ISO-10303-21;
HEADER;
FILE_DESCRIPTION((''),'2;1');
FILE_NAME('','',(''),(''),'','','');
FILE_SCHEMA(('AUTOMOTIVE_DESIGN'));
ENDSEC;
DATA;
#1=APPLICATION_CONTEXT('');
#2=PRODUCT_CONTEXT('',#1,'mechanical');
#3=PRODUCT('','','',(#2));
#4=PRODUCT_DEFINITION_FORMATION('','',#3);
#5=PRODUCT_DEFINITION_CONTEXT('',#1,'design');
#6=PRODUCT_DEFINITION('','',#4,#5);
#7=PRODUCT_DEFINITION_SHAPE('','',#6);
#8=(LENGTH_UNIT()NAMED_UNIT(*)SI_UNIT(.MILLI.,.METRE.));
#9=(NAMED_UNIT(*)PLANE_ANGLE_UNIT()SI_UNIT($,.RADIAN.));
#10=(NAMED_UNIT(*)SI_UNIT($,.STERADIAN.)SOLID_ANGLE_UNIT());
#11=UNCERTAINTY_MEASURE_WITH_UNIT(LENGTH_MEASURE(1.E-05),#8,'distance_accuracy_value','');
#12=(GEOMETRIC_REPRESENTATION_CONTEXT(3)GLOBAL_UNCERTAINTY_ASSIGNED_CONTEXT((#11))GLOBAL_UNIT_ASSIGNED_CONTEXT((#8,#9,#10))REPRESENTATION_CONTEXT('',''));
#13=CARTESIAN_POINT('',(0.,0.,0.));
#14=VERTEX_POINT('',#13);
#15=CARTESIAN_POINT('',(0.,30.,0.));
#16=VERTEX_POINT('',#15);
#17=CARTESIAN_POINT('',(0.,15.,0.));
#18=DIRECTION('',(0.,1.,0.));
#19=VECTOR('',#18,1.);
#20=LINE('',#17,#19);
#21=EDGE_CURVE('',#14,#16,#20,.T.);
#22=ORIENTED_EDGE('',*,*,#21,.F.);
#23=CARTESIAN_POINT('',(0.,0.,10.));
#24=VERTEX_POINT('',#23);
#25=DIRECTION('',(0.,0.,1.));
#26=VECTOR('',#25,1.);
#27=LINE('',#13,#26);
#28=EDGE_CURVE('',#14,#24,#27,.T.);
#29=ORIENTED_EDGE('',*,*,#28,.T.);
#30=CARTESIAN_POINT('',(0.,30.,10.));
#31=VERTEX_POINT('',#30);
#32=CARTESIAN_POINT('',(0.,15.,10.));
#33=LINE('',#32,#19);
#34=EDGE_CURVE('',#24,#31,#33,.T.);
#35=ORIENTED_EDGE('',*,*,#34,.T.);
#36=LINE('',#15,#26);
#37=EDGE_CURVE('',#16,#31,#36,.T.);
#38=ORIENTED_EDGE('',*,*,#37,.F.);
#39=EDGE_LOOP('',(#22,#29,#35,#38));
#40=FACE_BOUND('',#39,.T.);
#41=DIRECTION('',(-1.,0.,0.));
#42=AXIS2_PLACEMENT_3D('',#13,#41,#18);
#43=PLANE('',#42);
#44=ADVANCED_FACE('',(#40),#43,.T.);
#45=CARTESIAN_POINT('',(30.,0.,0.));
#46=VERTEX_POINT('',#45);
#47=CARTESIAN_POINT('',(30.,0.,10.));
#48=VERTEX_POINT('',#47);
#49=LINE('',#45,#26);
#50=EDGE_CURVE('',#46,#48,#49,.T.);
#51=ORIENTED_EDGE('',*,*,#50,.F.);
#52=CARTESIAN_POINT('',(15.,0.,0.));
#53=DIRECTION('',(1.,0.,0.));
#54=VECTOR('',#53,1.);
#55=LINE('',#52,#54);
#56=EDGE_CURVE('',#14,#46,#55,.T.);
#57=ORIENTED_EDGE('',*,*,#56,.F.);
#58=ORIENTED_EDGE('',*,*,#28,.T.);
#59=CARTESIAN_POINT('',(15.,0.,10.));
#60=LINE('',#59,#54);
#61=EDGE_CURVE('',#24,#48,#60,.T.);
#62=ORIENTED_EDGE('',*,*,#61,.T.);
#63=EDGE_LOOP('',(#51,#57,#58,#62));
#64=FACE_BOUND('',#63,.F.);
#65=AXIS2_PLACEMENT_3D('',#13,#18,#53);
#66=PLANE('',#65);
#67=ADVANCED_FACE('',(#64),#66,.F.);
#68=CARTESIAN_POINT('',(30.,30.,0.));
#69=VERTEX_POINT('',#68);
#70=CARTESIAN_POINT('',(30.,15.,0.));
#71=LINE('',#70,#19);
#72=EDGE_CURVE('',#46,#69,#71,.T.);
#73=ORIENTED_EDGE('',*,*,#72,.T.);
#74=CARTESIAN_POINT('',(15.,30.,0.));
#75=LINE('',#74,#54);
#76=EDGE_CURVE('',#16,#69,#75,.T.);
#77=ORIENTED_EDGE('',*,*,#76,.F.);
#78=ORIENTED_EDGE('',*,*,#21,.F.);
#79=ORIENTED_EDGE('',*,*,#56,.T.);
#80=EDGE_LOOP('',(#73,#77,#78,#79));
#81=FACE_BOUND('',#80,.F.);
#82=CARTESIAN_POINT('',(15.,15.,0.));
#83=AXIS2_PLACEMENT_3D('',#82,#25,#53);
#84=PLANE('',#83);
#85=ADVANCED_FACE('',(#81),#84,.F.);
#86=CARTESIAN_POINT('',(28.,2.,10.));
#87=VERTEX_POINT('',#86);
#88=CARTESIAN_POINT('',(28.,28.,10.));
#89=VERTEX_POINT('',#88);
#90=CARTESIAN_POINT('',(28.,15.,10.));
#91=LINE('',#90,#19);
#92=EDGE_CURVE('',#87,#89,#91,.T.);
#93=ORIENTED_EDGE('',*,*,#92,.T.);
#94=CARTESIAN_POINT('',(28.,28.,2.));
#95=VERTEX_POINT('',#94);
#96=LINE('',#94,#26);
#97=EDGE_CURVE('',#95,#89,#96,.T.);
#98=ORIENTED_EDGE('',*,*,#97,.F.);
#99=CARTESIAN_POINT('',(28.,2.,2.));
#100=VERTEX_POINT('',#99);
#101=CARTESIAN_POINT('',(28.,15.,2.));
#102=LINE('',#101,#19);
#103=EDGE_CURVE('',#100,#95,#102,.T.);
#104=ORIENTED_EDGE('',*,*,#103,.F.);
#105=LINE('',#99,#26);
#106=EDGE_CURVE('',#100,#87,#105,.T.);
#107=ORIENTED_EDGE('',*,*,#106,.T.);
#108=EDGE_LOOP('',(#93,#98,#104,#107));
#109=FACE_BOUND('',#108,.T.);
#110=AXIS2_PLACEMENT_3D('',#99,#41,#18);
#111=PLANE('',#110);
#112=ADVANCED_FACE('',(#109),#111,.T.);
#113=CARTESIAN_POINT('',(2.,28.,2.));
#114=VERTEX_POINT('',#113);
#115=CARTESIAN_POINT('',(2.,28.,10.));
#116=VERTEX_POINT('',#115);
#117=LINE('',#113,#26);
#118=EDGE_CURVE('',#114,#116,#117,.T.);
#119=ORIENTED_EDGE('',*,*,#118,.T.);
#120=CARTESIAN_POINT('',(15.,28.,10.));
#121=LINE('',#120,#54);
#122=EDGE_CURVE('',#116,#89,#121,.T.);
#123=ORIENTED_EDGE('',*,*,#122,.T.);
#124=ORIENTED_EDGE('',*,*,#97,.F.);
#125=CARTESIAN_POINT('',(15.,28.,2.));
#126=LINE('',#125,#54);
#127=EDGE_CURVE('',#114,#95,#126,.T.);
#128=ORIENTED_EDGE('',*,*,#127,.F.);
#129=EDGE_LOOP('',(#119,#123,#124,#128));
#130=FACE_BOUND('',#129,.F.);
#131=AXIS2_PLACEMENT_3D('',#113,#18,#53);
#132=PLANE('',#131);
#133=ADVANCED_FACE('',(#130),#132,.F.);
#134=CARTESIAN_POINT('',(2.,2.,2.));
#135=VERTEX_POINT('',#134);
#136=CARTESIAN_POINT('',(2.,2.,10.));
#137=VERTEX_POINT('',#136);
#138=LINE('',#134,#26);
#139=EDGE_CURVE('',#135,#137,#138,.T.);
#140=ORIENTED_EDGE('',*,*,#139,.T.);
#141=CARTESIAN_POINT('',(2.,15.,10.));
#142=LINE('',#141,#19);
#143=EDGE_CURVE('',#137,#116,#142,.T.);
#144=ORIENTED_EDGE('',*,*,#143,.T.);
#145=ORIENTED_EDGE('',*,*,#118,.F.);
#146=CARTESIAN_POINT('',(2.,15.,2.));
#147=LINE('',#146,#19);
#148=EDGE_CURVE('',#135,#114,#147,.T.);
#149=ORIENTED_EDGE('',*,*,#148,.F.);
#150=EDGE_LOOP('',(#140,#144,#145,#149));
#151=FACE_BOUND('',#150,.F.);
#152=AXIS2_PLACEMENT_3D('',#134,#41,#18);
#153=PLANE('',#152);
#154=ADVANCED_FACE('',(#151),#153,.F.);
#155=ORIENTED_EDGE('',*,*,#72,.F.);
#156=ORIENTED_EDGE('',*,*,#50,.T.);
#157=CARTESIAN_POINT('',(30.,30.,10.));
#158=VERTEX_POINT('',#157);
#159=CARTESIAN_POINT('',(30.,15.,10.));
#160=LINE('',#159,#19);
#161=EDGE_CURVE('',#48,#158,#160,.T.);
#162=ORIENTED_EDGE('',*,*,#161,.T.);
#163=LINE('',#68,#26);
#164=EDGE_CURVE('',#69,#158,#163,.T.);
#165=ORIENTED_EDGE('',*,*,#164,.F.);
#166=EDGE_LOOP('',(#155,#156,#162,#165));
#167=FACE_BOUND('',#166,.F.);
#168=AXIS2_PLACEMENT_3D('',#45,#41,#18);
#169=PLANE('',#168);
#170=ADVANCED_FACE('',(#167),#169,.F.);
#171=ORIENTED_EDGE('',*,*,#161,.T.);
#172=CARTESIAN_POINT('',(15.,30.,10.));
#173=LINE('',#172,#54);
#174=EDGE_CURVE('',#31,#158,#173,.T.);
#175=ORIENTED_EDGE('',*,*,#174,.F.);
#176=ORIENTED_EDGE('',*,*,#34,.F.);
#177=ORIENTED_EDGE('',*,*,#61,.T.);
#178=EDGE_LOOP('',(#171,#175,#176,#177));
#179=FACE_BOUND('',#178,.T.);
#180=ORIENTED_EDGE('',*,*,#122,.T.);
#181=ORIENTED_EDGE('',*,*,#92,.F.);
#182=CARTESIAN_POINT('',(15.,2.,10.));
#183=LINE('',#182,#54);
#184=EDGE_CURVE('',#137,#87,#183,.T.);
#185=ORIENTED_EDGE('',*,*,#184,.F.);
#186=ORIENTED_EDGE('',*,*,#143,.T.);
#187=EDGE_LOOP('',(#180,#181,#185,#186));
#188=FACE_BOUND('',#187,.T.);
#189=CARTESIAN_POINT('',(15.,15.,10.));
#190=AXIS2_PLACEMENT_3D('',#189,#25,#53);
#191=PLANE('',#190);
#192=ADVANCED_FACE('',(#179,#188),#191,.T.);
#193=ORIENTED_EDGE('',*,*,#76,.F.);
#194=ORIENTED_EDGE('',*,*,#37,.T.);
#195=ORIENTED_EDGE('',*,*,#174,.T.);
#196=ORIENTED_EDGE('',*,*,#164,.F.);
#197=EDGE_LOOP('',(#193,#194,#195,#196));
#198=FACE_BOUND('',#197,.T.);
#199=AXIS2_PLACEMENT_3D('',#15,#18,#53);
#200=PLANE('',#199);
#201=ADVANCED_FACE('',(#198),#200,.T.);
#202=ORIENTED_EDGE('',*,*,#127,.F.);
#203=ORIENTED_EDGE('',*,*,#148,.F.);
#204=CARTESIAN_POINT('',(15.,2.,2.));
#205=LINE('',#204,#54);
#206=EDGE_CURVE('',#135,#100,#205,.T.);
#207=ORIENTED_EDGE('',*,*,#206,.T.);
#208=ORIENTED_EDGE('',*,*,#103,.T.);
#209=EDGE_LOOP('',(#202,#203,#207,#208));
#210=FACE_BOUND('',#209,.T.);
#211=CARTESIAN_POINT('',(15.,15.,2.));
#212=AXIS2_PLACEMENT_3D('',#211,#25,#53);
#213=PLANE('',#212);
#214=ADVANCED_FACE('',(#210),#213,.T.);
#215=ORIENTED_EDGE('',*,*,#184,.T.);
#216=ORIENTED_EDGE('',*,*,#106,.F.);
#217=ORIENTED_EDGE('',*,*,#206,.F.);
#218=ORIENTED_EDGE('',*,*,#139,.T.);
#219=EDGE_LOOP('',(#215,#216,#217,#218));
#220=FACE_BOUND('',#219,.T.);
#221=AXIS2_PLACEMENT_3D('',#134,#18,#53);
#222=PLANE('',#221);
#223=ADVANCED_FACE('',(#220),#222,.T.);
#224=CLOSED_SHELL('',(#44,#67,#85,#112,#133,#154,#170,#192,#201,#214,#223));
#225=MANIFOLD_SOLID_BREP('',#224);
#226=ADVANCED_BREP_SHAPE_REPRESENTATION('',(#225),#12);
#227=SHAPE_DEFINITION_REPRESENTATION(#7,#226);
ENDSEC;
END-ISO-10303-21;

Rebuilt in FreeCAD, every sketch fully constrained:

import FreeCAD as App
import Part
import Sketcher
from FreeCAD import Vector
Q = App.Units.Quantity


def add_polygon(sketch, points):
    """Adds a closed chain of lines whose ends are joined by coincident constraints."""
    first, n = sketch.GeometryCount, len(points)
    for a, b in zip(points, points[1:] + points[:1]):
        sketch.addGeometry(Part.LineSegment(App.Vector(*a, 0), App.Vector(*b, 0)), False)
    for i in range(n):
        sketch.addConstraint(Sketcher.Constraint("Coincident", first + i, 2, first + (i + 1) % n, 1))

doc = App.newDocument("Part")
body = doc.addObject("PartDesign::Body", "Body")

sketch1 = doc.addObject("Sketcher::SketchObject", "Sketch")
body.addObject(sketch1)
sketch1.AttachmentSupport = (doc.XY_Plane, [""])
sketch1.MapMode = "FlatFace"
add_polygon(sketch1, [(0, 30), (0, 0), (30, 0), (30, 30)])
sketch1.addConstraint([
    Sketcher.Constraint("Vertical", 0),
    Sketcher.Constraint("Horizontal", 1),
    Sketcher.Constraint("Vertical", 2),
    Sketcher.Constraint("Horizontal", 3),
    Sketcher.Constraint("Coincident", 0, 2, -1, 1),
    Sketcher.Constraint("Equal", 3, 0),
    Sketcher.Constraint("DistanceX", 1, 1, 1, 2, Q("30 mm")),
])
pad1 = doc.addObject("PartDesign::Pad", "Pad")
body.addObject(pad1)
pad1.Profile = sketch1
pad1.Length = 10

sketch2 = doc.addObject("Sketcher::SketchObject", "Sketch001")
body.addObject(sketch2)
sketch2.AttachmentSupport = (doc.XY_Plane, [""])
sketch2.MapMode = "FlatFace"
sketch2.AttachmentOffset = App.Placement(Vector(0, 0, 2), App.Rotation())
add_polygon(sketch2, [(2, 28), (2, 2), (28, 2), (28, 28)])
sketch2.addConstraint([
    Sketcher.Constraint("Vertical", 0),
    Sketcher.Constraint("Horizontal", 1),
    Sketcher.Constraint("Vertical", 2),
    Sketcher.Constraint("Horizontal", 3),
    Sketcher.Constraint("Equal", 3, 0),
    Sketcher.Constraint("DistanceX", 1, 1, 1, 2, Q("26 mm")),
    Sketcher.Constraint("DistanceX", -1, 1, 0, 2, Q("2 mm")),
    Sketcher.Constraint("DistanceY", -1, 1, 0, 2, Q("2 mm")),
])
pocket1 = doc.addObject("PartDesign::Pocket", "Pocket")
body.addObject(pocket1)
pocket1.Profile = sketch2
pocket1.Length = 8
pocket1.Reversed = True

doc.recompute()
